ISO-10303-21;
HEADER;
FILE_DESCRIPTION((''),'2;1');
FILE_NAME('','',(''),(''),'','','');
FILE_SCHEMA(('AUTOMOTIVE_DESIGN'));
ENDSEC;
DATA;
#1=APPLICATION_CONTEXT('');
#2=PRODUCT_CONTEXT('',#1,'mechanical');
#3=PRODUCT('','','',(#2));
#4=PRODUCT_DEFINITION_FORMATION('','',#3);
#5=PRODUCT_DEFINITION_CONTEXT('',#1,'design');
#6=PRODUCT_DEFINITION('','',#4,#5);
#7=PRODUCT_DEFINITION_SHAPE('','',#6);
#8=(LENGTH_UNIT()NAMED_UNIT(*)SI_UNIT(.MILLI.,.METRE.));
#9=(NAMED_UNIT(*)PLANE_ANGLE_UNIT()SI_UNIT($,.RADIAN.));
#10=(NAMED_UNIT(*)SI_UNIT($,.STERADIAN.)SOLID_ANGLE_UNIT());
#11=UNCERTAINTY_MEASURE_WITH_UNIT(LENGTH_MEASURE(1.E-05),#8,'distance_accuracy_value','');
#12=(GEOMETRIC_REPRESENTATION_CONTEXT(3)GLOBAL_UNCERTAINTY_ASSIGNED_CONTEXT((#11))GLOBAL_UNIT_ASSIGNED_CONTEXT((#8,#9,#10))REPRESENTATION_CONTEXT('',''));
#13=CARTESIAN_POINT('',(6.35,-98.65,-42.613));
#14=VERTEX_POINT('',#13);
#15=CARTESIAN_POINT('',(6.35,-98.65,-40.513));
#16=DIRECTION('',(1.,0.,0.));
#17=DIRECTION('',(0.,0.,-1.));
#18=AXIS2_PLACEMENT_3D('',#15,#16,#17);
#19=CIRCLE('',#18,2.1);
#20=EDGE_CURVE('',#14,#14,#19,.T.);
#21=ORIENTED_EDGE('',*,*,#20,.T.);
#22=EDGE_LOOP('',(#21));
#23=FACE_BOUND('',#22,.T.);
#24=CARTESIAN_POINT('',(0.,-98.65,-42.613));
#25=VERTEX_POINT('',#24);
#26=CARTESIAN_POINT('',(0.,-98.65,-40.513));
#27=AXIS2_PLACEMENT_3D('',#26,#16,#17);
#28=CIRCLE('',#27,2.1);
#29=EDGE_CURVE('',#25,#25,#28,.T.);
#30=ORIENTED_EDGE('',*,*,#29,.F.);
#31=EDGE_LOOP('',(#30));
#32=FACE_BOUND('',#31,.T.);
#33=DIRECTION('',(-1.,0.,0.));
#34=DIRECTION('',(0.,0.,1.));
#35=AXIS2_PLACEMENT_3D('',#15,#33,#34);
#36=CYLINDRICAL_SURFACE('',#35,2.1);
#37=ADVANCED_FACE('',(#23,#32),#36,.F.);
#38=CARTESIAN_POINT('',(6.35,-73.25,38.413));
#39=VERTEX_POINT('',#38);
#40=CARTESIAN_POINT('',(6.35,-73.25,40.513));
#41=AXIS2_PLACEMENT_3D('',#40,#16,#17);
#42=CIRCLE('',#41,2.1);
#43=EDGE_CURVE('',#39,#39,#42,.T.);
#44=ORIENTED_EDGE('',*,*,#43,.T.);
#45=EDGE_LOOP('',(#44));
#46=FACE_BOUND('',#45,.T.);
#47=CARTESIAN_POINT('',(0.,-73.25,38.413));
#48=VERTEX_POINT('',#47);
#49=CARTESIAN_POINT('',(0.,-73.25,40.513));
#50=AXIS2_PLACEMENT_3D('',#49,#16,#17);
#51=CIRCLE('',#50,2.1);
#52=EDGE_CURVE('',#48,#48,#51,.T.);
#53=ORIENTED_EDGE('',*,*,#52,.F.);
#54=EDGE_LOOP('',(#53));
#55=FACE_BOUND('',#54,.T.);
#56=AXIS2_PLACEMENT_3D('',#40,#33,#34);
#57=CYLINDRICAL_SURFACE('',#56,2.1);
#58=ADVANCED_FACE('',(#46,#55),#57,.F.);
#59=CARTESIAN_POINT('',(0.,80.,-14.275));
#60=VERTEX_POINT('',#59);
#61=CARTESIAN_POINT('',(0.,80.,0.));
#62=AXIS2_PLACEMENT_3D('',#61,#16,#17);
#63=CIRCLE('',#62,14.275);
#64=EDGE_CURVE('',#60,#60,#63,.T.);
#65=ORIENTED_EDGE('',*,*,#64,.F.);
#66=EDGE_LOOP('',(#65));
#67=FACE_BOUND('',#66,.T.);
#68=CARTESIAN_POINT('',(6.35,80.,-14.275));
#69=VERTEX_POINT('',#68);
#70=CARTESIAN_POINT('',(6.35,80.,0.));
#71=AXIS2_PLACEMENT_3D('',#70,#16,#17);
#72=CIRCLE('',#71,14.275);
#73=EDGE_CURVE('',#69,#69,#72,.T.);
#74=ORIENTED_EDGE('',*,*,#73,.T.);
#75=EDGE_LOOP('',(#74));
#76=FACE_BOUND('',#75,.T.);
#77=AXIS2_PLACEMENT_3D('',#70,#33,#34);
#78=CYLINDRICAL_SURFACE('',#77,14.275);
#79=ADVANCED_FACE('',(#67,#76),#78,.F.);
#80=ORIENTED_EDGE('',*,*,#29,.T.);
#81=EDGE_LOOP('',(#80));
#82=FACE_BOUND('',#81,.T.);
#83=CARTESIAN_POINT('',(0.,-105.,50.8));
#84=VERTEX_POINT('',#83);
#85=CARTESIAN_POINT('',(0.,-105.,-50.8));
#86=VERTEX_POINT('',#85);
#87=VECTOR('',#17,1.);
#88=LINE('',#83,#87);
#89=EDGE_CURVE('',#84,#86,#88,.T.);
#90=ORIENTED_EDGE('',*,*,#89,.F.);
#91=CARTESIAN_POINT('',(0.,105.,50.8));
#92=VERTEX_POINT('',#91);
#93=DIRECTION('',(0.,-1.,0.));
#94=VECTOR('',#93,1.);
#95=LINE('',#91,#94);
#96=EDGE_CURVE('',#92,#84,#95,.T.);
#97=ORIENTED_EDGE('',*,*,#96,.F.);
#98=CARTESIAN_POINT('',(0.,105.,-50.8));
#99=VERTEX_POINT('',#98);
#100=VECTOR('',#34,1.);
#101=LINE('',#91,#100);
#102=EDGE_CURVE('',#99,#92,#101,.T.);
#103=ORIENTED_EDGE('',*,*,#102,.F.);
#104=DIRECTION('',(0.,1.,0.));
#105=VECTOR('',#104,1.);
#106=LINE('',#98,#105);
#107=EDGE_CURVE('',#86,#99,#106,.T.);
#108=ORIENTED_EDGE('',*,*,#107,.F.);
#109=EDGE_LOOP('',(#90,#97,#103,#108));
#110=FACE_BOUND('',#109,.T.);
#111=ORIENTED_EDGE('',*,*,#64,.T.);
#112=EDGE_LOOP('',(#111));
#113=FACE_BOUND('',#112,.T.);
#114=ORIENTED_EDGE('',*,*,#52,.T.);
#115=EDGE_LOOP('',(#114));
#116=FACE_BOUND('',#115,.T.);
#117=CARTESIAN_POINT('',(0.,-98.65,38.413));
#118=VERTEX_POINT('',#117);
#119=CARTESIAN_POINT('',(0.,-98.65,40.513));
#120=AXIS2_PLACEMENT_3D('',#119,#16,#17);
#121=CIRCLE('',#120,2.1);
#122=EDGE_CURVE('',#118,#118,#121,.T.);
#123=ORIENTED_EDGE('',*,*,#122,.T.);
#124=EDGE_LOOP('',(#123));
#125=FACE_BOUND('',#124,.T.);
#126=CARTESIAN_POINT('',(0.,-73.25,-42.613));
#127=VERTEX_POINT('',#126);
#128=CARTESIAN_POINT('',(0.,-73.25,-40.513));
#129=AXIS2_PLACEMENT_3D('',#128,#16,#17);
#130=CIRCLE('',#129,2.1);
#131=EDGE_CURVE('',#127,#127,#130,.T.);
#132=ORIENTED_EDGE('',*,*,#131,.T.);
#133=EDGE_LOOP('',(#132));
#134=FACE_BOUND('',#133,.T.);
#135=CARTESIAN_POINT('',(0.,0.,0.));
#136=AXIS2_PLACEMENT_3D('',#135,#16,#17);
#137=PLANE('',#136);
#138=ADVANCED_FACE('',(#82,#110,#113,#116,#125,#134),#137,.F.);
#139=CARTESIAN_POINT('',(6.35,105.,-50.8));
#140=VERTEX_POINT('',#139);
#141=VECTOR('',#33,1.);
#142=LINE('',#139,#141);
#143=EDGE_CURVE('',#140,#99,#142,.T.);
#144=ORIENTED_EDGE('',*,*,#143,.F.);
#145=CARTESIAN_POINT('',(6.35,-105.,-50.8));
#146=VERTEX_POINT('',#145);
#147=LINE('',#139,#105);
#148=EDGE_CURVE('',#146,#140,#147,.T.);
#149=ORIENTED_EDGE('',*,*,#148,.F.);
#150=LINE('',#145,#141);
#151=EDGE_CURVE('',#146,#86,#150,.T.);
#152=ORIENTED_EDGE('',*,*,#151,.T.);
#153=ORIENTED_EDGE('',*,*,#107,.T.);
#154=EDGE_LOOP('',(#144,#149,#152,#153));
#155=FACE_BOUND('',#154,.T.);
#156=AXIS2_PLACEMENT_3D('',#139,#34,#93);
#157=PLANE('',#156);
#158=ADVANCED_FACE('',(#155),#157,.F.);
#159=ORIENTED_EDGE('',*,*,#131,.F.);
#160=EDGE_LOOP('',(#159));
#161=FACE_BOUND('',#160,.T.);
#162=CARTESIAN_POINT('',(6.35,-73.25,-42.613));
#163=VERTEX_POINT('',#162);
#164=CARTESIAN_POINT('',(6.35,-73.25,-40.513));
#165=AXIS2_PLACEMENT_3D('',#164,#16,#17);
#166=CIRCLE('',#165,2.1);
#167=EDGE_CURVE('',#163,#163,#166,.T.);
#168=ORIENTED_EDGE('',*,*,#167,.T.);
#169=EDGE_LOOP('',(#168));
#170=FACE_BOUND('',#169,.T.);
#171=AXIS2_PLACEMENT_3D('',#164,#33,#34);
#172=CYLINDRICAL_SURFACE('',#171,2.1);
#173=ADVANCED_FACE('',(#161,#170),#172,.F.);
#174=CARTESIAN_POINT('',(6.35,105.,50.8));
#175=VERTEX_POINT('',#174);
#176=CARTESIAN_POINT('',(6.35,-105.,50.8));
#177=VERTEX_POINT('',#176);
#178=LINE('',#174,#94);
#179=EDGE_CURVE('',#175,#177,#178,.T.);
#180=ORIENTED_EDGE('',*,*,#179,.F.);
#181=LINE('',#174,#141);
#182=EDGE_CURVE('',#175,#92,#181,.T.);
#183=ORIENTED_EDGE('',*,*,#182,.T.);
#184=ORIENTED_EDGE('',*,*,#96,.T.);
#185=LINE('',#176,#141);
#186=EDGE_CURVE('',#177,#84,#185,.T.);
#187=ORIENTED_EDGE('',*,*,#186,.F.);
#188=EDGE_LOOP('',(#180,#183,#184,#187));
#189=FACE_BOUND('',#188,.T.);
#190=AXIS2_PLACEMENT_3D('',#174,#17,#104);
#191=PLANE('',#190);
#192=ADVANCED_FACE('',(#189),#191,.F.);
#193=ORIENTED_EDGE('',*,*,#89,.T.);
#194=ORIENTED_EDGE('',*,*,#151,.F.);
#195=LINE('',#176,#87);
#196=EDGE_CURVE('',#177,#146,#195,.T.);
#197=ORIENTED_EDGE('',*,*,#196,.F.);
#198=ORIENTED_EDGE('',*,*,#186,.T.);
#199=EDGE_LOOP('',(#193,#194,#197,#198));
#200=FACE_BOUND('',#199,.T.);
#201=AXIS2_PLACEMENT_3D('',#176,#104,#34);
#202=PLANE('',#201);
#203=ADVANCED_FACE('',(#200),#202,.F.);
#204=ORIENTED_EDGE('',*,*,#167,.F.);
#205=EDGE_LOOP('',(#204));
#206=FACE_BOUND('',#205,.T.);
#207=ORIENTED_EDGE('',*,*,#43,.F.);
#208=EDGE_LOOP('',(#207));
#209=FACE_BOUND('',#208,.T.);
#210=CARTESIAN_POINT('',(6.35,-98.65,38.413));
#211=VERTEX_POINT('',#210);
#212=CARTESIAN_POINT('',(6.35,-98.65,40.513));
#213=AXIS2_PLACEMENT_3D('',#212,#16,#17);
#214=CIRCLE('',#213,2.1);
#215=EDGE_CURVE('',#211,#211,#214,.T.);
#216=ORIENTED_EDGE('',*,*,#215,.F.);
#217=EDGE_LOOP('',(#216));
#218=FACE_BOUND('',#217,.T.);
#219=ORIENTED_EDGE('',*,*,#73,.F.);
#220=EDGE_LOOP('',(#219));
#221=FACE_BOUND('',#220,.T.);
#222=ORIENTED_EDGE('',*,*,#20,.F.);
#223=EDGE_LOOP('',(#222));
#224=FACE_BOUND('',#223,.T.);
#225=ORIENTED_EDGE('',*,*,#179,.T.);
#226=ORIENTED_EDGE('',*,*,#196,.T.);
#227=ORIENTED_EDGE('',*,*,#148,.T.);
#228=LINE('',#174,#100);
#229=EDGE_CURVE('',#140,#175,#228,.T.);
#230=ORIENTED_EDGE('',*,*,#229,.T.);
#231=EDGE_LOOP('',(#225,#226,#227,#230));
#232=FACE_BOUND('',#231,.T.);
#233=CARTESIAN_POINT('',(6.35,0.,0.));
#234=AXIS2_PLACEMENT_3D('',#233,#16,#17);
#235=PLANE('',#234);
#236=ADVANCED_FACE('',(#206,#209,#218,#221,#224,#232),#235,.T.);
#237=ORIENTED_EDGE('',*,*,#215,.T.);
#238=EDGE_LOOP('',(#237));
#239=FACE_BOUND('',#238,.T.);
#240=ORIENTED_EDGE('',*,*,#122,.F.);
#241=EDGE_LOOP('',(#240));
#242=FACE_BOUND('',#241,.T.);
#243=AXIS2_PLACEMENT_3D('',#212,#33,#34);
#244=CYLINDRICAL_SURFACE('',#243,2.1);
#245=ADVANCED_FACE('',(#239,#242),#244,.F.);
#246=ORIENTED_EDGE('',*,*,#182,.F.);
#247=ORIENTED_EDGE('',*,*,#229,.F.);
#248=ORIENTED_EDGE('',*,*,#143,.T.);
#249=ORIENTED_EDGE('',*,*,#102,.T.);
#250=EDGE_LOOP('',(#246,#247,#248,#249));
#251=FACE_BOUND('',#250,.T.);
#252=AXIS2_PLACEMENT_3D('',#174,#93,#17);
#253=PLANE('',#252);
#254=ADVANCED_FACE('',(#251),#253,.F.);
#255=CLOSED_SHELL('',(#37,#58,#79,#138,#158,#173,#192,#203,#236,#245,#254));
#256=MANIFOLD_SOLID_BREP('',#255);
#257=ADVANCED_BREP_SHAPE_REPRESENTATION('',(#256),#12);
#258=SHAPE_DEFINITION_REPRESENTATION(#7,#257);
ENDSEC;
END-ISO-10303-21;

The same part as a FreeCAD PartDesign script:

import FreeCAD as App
import Part
import Sketcher
Q = App.Units.Quantity


def add_polygon(sketch, points):
    """Adds a closed chain of lines whose ends are joined by coincident constraints."""
    first, n = sketch.GeometryCount, len(points)
    for a, b in zip(points, points[1:] + points[:1]):
        sketch.addGeometry(Part.LineSegment(App.Vector(*a, 0), App.Vector(*b, 0)), False)
    for i in range(n):
        sketch.addConstraint(Sketcher.Constraint("Coincident", first + i, 2, first + (i + 1) % n, 1))

doc = App.newDocument("Part")
params = doc.addObject("Spreadsheet::Sheet", "Params")
for row, (alias, value) in enumerate([
    ("sketch1_diameter", "4.2 mm"),
    ("sketch1_diameter2", "28.55 mm"),
    ("sketch1_width", "210 mm"),
    ("sketch1_height", "101.6 mm"),
    ("pad1_length", "6.35 mm"),
], start=1):
    params.set(f"A{row}", alias)
    params.set(f"B{row}", "=" + value)
    params.setAlias(f"B{row}", alias)

body = doc.addObject("PartDesign::Body", "Body")

# Sketch on YZ plane
sketch1 = body.newObject("Sketcher::SketchObject", "Sketch")
sketch1.AttachmentSupport = (doc.getObject("YZ_Plane"), [""])
sketch1.MapMode = "FlatFace"
add_polygon(sketch1, [(105, 50.8), (-105, 50.8), (-105, -50.8), (105, -50.8)])  # lines 0-3
sketch1.addGeometry(Part.Circle(App.Vector(-98.7, 40.5, 0), App.Vector(0, 0, 1), 2.1), False)  # 4
sketch1.addGeometry(Part.Circle(App.Vector(-73.2, 40.5, 0), App.Vector(0, 0, 1), 2.1), False)  # 5
sketch1.addGeometry(Part.Circle(App.Vector(-98.7, -40.5, 0), App.Vector(0, 0, 1), 2.1), False)  # 6
sketch1.addGeometry(Part.Circle(App.Vector(-73.2, -40.5, 0), App.Vector(0, 0, 1), 2.1), False)  # 7
sketch1.addGeometry(Part.Circle(App.Vector(80, 0, 0), App.Vector(0, 0, 1), 14.3), False)  # 8
sketch1.addConstraint(Sketcher.Constraint("Horizontal", 0))
sketch1.addConstraint(Sketcher.Constraint("Vertical", 1))
sketch1.addConstraint(Sketcher.Constraint("Horizontal", 2))
sketch1.addConstraint(Sketcher.Constraint("Vertical", 3))
sketch1.addConstraint(Sketcher.Constraint("Equal", 4, 5))
sketch1.addConstraint(Sketcher.Constraint("Equal", 5, 6))
sketch1.addConstraint(Sketcher.Constraint("Equal", 6, 7))
sketch1.addConstraint(Sketcher.Constraint("Symmetric", 0, 2, 2, 2, -1, 1))
sketch1.addConstraint(Sketcher.Constraint("Symmetric", 4, 3, 6, 3, -1))
sketch1.addConstraint(Sketcher.Constraint("Symmetric", 5, 3, 7, 3, -1))
sketch1.addConstraint(Sketcher.Constraint("PointOnObject", 8, 3, -1))
sketch1.addConstraint(Sketcher.Constraint("Horizontal", 4, 3, 5, 3))
sketch1.addConstraint(Sketcher.Constraint("Diameter", 4, Q("4.2 mm")))
sketch1.addConstraint(Sketcher.Constraint("Diameter", 8, Q("28.55 mm")))
sketch1.addConstraint(Sketcher.Constraint("DistanceX", 0, 2, 0, 1, Q("210 mm")))
sketch1.addConstraint(Sketcher.Constraint("DistanceY", 1, 2, 1, 1, Q("101.6 mm")))
sketch1.addConstraint(Sketcher.Constraint("DistanceX", -1, 1, 8, 3, Q("80 mm")))
sketch1.addConstraint(Sketcher.Constraint("DistanceX", 4, 3, 5, 3, Q("25.4 mm")))
sketch1.addConstraint(Sketcher.Constraint("DistanceX", 4, 3, -1, 1, Q("98.65 mm")))
sketch1.addConstraint(Sketcher.Constraint("DistanceY", -1, 1, 4, 3, Q("40.513 mm")))
sketch1.setExpression("Constraints[16]", "Params.sketch1_diameter")
sketch1.setExpression("Constraints[17]", "Params.sketch1_diameter2")
sketch1.setExpression("Constraints[18]", "Params.sketch1_width")
sketch1.setExpression("Constraints[19]", "Params.sketch1_height")
pad1 = body.newObject("PartDesign::Pad", "Pad")
pad1.Profile = sketch1
pad1.setExpression("Length", "Params.pad1_length")

doc.recompute()
